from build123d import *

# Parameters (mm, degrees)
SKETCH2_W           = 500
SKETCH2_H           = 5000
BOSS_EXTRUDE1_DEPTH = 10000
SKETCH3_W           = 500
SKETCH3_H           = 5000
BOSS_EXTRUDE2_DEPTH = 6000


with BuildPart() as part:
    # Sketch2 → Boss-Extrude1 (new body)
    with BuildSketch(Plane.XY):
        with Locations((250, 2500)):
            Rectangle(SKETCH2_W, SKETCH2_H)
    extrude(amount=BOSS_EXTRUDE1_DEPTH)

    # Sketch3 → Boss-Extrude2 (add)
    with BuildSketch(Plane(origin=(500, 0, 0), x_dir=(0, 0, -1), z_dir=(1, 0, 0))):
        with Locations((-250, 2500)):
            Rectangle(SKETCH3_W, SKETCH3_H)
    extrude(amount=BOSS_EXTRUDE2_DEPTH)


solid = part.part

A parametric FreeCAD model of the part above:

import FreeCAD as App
import Part
import Sketcher

V = App.Vector

doc = App.newDocument("Part")
body = doc.addObject("PartDesign::Body", "Body")

# Sketch on XY plane
sketch1 = body.newObject("Sketcher::SketchObject", "Sketch")
sketch1.AttachmentSupport = (doc.getObject("XY_Plane"), [""])
sketch1.MapMode = "FlatFace"
sketch1.addGeometry(Part.LineSegment(V(0, 5000, 0), V(0, 0, 0)), False)
sketch1.addGeometry(Part.LineSegment(V(0, 0, 0), V(500, 0, 0)), False)
sketch1.addGeometry(Part.LineSegment(V(500, 0, 0), V(500, 5000, 0)), False)
sketch1.addGeometry(Part.LineSegment(V(500, 5000, 0), V(0, 5000, 0)), False)
sketch1.addConstraint(Sketcher.Constraint("Coincident", 0, 2, 1, 1))
sketch1.addConstraint(Sketcher.Constraint("Coincident", 1, 2, 2, 1))
sketch1.addConstraint(Sketcher.Constraint("Coincident", 2, 2, 3, 1))
sketch1.addConstraint(Sketcher.Constraint("Coincident", 3, 2, 0, 1))
sketch1.addConstraint(Sketcher.Constraint("Vertical", 0))
sketch1.addConstraint(Sketcher.Constraint("Horizontal", 1))
sketch1.addConstraint(Sketcher.Constraint("Vertical", 2))
sketch1.addConstraint(Sketcher.Constraint("Horizontal", 3))
sketch1.addConstraint(Sketcher.Constraint("Coincident", 0, 2, -1, 1))
sketch1.addConstraint(Sketcher.Constraint("DistanceX", 1, 1, 1, 2, 500.0))
sketch1.addConstraint(Sketcher.Constraint("DistanceY", 0, 2, 0, 1, 5000.0))
pad1 = body.newObject("PartDesign::Pad", "Pad")
pad1.Profile = sketch1
pad1.Length = 10000

# Sketch on YZ plane
sketch2 = body.newObject("Sketcher::SketchObject", "Sketch001")
sketch2.AttachmentSupport = (doc.getObject("YZ_Plane"), [""])
sketch2.MapMode = "FlatFace"
sketch2.AttachmentOffset = App.Placement(V(0, 0, 500), App.Rotation())
sketch2.addGeometry(Part.LineSegment(V(5000, 500, 0), V(0, 500, 0)), False)
sketch2.addGeometry(Part.LineSegment(V(0, 500, 0), V(0, 0, 0)), False)
sketch2.addGeometry(Part.LineSegment(V(0, 0, 0), V(5000, 0, 0)), False)
sketch2.addGeometry(Part.LineSegment(V(5000, 0, 0), V(5000, 500, 0)), False)
sketch2.addConstraint(Sketcher.Constraint("Coincident", 0, 2, 1, 1))
sketch2.addConstraint(Sketcher.Constraint("Coincident", 1, 2, 2, 1))
sketch2.addConstraint(Sketcher.Constraint("Coincident", 2, 2, 3, 1))
sketch2.addConstraint(Sketcher.Constraint("Coincident", 3, 2, 0, 1))
sketch2.addConstraint(Sketcher.Constraint("Horizontal", 0))
sketch2.addConstraint(Sketcher.Constraint("Vertical", 1))
sketch2.addConstraint(Sketcher.Constraint("Horizontal", 2))
sketch2.addConstraint(Sketcher.Constraint("Vertical", 3))
sketch2.addConstraint(Sketcher.Constraint("Coincident", 1, 2, -1, 1))
sketch2.addConstraint(Sketcher.Constraint("DistanceX", 0, 2, 0, 1, 5000.0))
sketch2.addConstraint(Sketcher.Constraint("DistanceY", 1, 2, 1, 1, 500.0))
pad2 = body.newObject("PartDesign::Pad", "Pad001")
pad2.Profile = sketch2
pad2.Length = 6000

doc.recompute()
